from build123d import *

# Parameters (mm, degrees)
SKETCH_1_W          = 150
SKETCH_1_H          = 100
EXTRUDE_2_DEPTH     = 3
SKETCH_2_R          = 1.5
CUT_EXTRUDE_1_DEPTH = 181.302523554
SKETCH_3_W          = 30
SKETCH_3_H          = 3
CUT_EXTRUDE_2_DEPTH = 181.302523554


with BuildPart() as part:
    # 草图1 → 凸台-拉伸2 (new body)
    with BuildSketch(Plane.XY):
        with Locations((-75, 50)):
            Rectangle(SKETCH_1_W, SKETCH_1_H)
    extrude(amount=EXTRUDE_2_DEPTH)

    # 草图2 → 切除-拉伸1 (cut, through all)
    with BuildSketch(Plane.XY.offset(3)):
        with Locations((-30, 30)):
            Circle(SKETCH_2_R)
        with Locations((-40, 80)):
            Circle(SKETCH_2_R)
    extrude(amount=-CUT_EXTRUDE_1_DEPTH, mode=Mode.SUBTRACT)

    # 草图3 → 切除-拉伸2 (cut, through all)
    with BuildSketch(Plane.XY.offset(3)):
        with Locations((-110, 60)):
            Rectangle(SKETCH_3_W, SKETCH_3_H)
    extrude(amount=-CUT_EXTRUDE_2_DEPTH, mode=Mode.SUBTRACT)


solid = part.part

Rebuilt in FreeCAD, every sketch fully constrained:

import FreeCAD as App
import Part
import Sketcher

V = App.Vector
Q = App.Units.Quantity

doc = App.newDocument("Part")
body = doc.addObject("PartDesign::Body", "Body")

# Sketch on XY plane
sketch1 = body.newObject("Sketcher::SketchObject", "Sketch")
sketch1.AttachmentSupport = (doc.getObject("XY_Plane"), [""])
sketch1.MapMode = "FlatFace"
sketch1.addGeometry([
    Part.LineSegment(V(-150, 100, 0), V(-150, 0, 0)),
    Part.LineSegment(V(-150, 0, 0), V(0, 0, 0)),
    Part.LineSegment(V(0, 0, 0), V(0, 100, 0)),
    Part.LineSegment(V(0, 100, 0), V(-150, 100, 0)),
], False)
sketch1.addConstraint([
    Sketcher.Constraint("Coincident", 0, 2, 1, 1),
    Sketcher.Constraint("Coincident", 1, 2, 2, 1),
    Sketcher.Constraint("Coincident", 2, 2, 3, 1),
    Sketcher.Constraint("Coincident", 3, 2, 0, 1),
    Sketcher.Constraint("Vertical", 0),
    Sketcher.Constraint("Horizontal", 1),
    Sketcher.Constraint("Vertical", 2),
    Sketcher.Constraint("Horizontal", 3),
    Sketcher.Constraint("Coincident", 1, 2, -1, 1),
    Sketcher.Constraint("DistanceX", 1, 1, 1, 2, Q("150 mm")),
    Sketcher.Constraint("DistanceY", 0, 2, 0, 1, Q("100 mm")),
])
pad1 = body.newObject("PartDesign::Pad", "Pad")
pad1.Profile = sketch1
pad1.Length = 3

# Sketch on XY plane
sketch2 = body.newObject("Sketcher::SketchObject", "Sketch001")
sketch2.AttachmentSupport = (doc.getObject("XY_Plane"), [""])
sketch2.MapMode = "FlatFace"
sketch2.AttachmentOffset = App.Placement(V(0, 0, 3), App.Rotation())
sketch2.addGeometry([
    Part.Circle(V(-30, 30, 0), V(0, 0, 1), 1.5),
    Part.Circle(V(-40, 80, 0), V(0, 0, 1), 1.5),
], False)
sketch2.addConstraint([
    Sketcher.Constraint("Equal", 0, 1),
    Sketcher.Constraint("Diameter", 0, Q("3 mm")),
    Sketcher.Constraint("DistanceX", 0, 3, -1, 1, Q("30 mm")),
    Sketcher.Constraint("DistanceY", -1, 1, 0, 3, Q("30 mm")),
    Sketcher.Constraint("DistanceX", 1, 3, -1, 1, Q("40 mm")),
    Sketcher.Constraint("DistanceY", -1, 1, 1, 3, Q("80 mm")),
])
pocket1 = body.newObject("PartDesign::Pocket", "Pocket")
pocket1.Profile = sketch2
pocket1.Type = "ThroughAll"

# Sketch on XY plane
sketch3 = body.newObject("Sketcher::SketchObject", "Sketch002")
sketch3.AttachmentSupport = (doc.getObject("XY_Plane"), [""])
sketch3.MapMode = "FlatFace"
sketch3.AttachmentOffset = App.Placement(V(0, 0, 3), App.Rotation())
sketch3.addGeometry([
    Part.LineSegment(V(-125, 61.5, 0), V(-125, 58.5, 0)),
    Part.LineSegment(V(-125, 58.5, 0), V(-95, 58.5, 0)),
    Part.LineSegment(V(-95, 58.5, 0), V(-95, 61.5, 0)),
    Part.LineSegment(V(-95, 61.5, 0), V(-125, 61.5, 0)),
], False)
sketch3.addConstraint([
    Sketcher.Constraint("Coincident", 0, 2, 1, 1),
    Sketcher.Constraint("Coincident", 1, 2, 2, 1),
    Sketcher.Constraint("Coincident", 2, 2, 3, 1),
    Sketcher.Constraint("Coincident", 3, 2, 0, 1),
    Sketcher.Constraint("Vertical", 0),
    Sketcher.Constraint("Horizontal", 1),
    Sketcher.Constraint("Vertical", 2),
    Sketcher.Constraint("Horizontal", 3),
    Sketcher.Constraint("DistanceX", 1, 1, 1, 2, Q("30 mm")),
    Sketcher.Constraint("DistanceY", 0, 2, 0, 1, Q("3 mm")),
    Sketcher.Constraint("DistanceX", 0, 2, -1, 1, Q("125 mm")),
    Sketcher.Constraint("DistanceY", -1, 1, 0, 2, Q("58.5 mm")),
])
pocket2 = body.newObject("PartDesign::Pocket", "Pocket001")
pocket2.Profile = sketch3
pocket2.Type = "ThroughAll"

doc.recompute()
